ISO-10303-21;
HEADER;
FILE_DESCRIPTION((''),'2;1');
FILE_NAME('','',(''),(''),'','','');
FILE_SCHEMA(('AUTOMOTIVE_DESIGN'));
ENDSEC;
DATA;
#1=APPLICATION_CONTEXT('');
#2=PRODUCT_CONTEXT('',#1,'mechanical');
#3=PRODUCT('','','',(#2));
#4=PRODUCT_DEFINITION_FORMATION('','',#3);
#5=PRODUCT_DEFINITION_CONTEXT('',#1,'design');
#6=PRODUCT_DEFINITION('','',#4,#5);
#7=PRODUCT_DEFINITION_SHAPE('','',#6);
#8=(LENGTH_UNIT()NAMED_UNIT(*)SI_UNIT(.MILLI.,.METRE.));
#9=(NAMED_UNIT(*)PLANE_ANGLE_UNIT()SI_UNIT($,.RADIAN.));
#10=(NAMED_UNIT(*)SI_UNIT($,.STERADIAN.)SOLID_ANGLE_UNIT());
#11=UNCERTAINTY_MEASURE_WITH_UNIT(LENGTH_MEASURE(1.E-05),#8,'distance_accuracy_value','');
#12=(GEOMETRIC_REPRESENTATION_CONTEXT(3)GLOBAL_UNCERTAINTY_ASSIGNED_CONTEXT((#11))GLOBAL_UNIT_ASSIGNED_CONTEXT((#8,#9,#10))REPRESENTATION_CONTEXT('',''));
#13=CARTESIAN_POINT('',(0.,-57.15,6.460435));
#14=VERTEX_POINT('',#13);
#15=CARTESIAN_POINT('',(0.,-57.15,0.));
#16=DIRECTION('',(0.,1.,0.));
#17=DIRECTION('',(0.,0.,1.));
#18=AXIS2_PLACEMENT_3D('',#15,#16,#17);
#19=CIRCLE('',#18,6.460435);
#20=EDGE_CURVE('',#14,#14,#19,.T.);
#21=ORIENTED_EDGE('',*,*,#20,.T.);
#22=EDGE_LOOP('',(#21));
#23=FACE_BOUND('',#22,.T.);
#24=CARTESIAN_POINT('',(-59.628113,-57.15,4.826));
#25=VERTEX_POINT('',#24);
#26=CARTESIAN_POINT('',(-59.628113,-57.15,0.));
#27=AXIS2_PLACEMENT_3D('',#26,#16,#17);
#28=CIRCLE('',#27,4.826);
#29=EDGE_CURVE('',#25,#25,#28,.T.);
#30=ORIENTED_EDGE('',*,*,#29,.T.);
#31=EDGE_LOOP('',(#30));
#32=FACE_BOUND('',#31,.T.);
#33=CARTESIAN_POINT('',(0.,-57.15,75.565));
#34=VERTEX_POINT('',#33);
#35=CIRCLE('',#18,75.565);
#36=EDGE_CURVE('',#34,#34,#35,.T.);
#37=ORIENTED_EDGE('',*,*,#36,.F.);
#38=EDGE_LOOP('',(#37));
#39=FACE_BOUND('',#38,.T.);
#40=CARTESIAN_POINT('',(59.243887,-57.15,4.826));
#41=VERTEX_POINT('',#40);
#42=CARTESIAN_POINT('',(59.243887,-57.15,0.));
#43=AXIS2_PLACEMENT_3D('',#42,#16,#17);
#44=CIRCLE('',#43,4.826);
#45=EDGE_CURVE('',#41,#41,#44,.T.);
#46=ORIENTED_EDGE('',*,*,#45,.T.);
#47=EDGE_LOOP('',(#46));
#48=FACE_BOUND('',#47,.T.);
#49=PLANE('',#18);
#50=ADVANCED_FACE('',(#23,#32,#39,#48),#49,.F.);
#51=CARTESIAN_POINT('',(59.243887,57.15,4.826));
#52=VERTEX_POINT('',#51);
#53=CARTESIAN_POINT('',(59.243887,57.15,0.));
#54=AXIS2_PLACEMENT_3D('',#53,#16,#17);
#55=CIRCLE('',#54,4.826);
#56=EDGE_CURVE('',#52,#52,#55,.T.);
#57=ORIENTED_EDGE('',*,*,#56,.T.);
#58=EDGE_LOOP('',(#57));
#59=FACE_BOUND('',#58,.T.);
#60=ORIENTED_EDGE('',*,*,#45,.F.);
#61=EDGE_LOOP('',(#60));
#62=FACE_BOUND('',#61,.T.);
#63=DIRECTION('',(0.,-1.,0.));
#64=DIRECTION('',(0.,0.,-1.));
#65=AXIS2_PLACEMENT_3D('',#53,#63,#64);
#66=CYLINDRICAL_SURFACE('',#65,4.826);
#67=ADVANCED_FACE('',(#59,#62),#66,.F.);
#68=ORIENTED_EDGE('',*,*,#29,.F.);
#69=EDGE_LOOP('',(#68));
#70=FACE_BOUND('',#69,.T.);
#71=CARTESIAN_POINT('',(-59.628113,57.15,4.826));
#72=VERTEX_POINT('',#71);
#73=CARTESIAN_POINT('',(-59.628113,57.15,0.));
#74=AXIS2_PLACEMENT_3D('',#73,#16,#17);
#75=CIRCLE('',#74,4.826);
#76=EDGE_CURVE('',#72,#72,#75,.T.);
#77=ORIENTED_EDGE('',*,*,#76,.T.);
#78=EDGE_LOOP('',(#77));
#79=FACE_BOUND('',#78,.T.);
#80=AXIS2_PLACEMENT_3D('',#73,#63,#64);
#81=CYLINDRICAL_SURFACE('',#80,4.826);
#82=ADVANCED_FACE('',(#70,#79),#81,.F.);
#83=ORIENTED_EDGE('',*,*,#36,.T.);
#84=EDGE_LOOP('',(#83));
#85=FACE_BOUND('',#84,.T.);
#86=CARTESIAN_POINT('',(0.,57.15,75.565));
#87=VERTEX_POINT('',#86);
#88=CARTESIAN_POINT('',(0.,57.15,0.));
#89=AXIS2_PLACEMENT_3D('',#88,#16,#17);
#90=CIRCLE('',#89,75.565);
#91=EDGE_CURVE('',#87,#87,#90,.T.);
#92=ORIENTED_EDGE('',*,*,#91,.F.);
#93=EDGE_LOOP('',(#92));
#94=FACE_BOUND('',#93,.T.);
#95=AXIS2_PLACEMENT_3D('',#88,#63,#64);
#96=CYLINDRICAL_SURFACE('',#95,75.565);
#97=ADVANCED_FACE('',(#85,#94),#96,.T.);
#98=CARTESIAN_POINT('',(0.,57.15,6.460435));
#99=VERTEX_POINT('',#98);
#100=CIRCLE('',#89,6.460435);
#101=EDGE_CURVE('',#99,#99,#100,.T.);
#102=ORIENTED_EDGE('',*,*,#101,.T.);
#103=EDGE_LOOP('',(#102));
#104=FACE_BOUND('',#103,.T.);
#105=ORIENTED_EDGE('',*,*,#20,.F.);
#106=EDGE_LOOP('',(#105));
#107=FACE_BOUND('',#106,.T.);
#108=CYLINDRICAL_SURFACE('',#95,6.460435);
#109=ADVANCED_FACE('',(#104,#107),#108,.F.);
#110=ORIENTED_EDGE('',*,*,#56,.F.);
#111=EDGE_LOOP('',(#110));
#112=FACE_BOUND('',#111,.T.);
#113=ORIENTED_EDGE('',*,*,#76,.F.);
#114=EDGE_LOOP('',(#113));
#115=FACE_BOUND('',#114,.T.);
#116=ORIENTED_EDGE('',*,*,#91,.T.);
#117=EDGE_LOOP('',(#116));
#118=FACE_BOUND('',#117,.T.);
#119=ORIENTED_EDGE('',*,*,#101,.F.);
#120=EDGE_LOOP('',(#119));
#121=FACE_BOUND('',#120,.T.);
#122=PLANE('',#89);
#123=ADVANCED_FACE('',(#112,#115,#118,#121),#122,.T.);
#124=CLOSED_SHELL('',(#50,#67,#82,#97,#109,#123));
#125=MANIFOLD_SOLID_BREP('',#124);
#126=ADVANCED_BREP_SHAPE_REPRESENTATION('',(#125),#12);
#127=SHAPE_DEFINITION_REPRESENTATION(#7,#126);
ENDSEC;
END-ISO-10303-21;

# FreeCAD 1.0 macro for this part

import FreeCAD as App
import Part
import Sketcher
Q = App.Units.Quantity

doc = App.newDocument("Part")
body = doc.addObject("PartDesign::Body", "Body")

# Sketch on XZ plane
sketch1 = body.newObject("Sketcher::SketchObject", "Sketch")
sketch1.AttachmentSupport = (doc.getObject("XZ_Plane"), [""])
sketch1.MapMode = "FlatFace"
sketch1.addGeometry(Part.Circle(App.Vector(0, 0, 0), App.Vector(0, 0, 1), 75.6), False)
sketch1.addGeometry(Part.Circle(App.Vector(-59.6, 0, 0), App.Vector(0, 0, 1), 4.8), False)
sketch1.addGeometry(Part.Circle(App.Vector(0, 0, 0), App.Vector(0, 0, 1), 6.5), False)
sketch1.addGeometry(Part.Circle(App.Vector(59.2, 0, 0), App.Vector(0, 0, 1), 4.8), False)
sketch1.addConstraint(Sketcher.Constraint("Coincident", 0, 3, -1, 1))
sketch1.addConstraint(Sketcher.Constraint("Coincident", 2, 3, -1, 1))
sketch1.addConstraint(Sketcher.Constraint("Equal", 1, 3))
sketch1.addConstraint(Sketcher.Constraint("PointOnObject", 1, 3, -1))
sketch1.addConstraint(Sketcher.Constraint("PointOnObject", 3, 3, -1))
sketch1.addConstraint(Sketcher.Constraint("Diameter", 0, Q("5.95 in")))
sketch1.addConstraint(Sketcher.Constraint("Diameter", 1, Q("0.38 in")))
sketch1.addConstraint(Sketcher.Constraint("DistanceX", 1, 3, 3, 3, Q("4.68 in")))
sketch1.addConstraint(Sketcher.Constraint("Diameter", 2, Q("12.92087 mm")))
sketch1.addConstraint(Sketcher.Constraint("DistanceX", 1, 3, -1, 1, Q("59.628113 mm")))
pad1 = body.newObject("PartDesign::Pad", "Pad")
pad1.Profile = sketch1
pad1.Length = Q("4.5 in")
pad1.Midplane = True

doc.recompute()
